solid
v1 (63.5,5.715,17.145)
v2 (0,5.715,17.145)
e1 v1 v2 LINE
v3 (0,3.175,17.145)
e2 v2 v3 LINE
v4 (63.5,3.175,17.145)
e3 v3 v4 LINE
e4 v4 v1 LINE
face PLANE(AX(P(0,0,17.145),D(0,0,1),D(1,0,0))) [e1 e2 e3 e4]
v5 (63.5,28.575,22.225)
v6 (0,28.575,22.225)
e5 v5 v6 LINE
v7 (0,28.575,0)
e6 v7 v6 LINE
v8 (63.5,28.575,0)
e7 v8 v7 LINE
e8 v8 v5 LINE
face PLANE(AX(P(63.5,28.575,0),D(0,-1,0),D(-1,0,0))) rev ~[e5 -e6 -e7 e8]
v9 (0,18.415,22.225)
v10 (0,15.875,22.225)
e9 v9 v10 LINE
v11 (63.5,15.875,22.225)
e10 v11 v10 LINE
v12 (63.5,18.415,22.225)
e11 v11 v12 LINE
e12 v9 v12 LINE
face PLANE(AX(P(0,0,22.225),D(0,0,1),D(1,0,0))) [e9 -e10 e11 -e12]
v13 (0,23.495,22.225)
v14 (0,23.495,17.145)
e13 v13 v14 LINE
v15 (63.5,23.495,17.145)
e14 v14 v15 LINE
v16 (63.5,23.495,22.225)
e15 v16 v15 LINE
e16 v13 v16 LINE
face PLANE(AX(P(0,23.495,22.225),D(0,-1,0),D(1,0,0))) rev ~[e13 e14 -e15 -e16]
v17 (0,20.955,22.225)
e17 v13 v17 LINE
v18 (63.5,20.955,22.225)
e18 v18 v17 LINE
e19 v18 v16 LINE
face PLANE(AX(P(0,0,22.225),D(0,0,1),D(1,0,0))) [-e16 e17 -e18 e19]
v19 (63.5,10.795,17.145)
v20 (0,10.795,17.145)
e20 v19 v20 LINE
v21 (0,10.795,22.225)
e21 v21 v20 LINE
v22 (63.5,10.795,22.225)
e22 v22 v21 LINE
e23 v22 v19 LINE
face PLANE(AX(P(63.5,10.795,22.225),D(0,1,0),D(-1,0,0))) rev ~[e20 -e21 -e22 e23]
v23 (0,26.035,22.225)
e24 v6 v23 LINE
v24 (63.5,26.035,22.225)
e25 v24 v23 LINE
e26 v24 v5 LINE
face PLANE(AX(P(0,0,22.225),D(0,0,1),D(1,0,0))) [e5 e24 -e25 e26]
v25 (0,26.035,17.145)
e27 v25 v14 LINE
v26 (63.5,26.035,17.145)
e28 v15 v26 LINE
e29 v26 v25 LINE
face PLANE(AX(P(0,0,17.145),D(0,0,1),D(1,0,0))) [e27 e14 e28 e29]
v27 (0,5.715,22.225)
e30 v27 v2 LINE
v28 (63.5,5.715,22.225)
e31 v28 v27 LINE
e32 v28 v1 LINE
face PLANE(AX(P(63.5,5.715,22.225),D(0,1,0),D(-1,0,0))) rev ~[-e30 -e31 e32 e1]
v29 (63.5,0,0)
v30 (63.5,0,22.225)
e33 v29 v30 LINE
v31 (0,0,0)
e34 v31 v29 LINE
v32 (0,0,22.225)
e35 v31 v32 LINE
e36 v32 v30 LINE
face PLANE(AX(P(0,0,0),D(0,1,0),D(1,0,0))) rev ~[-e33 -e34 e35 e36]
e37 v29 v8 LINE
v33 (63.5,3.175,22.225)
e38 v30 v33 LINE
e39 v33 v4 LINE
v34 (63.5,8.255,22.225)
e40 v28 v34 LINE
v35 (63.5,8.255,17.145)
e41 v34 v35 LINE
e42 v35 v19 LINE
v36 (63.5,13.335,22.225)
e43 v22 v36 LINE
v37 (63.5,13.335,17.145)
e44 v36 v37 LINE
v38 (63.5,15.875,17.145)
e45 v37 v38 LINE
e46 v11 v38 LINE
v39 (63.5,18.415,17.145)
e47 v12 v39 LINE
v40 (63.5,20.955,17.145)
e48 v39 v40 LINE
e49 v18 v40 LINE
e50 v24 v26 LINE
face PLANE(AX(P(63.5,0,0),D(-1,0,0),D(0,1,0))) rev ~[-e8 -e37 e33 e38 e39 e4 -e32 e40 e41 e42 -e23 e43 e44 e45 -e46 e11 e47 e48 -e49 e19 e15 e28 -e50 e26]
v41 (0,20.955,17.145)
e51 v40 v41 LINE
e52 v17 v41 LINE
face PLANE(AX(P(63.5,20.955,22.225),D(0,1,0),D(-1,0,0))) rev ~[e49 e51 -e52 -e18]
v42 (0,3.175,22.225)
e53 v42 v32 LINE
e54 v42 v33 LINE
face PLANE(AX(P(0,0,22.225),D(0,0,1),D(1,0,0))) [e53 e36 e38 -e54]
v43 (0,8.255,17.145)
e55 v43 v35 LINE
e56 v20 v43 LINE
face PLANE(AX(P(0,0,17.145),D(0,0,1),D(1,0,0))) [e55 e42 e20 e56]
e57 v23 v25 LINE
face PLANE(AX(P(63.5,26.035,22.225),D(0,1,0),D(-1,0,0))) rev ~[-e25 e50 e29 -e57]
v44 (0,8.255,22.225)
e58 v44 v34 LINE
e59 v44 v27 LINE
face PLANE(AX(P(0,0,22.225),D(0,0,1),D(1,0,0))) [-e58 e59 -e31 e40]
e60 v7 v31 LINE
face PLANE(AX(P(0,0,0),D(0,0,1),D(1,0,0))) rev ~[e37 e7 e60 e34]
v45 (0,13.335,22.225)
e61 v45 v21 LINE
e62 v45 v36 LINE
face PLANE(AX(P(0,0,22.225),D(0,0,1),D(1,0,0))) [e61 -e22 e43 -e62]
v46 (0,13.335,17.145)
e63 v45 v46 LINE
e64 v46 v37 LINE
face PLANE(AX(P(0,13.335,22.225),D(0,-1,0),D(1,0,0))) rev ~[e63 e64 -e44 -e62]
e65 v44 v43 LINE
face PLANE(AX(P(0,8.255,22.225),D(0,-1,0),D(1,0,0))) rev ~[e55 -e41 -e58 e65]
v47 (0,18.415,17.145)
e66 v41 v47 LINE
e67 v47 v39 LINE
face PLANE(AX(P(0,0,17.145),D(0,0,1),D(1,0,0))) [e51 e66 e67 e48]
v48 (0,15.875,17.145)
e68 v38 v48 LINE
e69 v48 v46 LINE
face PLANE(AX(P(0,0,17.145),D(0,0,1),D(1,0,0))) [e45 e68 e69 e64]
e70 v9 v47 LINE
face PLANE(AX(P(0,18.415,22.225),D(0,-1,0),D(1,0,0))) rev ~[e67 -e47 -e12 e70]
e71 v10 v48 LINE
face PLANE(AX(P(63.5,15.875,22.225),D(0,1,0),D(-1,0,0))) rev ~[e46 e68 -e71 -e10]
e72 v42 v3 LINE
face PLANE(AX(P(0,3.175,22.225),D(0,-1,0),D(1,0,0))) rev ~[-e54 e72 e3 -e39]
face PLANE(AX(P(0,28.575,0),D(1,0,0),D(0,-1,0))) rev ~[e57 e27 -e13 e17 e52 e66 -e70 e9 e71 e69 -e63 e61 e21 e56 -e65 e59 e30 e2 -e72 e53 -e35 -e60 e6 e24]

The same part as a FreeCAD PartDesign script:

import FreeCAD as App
import Part
import Sketcher

V = App.Vector
Q = App.Units.Quantity

doc = App.newDocument("Part")
params = doc.addObject("Spreadsheet::Sheet", "Params")
for row, (alias, value) in enumerate([
    ("sketch1_width", "2.5 in"),
    ("sketch1_height", "1.125 in"),
    ("pad1_length", "0.875 in"),
    ("sketch2_height", "0.1 in"),
    ("sketch2_width", "2.5 in"),
    ("pocket1_length", "0.2 in"),
], start=1):
    params.set(f"A{row}", alias)
    params.set(f"B{row}", "=" + value)
    params.setAlias(f"B{row}", alias)

body = doc.addObject("PartDesign::Body", "Body")

sketch1 = body.newObject("Sketcher::SketchObject", "Sketch")
sketch1.AttachmentSupport = (doc.getObject("XY_Plane"), [""])
sketch1.MapMode = "FlatFace"
sketch1.addGeometry([
    Part.LineSegment(V(0, 29, 0), V(0, 0, 0)),
    Part.LineSegment(V(0, 0, 0), V(64, 0, 0)),
    Part.LineSegment(V(64, 0, 0), V(64, 29, 0)),
    Part.LineSegment(V(64, 29, 0), V(0, 29, 0)),
], False)
sketch1.addConstraint([
    Sketcher.Constraint("Coincident", 0, 2, 1, 1),
    Sketcher.Constraint("Coincident", 1, 2, 2, 1),
    Sketcher.Constraint("Coincident", 2, 2, 3, 1),
    Sketcher.Constraint("Coincident", 3, 2, 0, 1),
    Sketcher.Constraint("Vertical", 0),
    Sketcher.Constraint("Horizontal", 1),
    Sketcher.Constraint("Vertical", 2),
    Sketcher.Constraint("Horizontal", 3),
    Sketcher.Constraint("Coincident", 0, 2, -1, 1),
    Sketcher.Constraint("DistanceX", 1, 1, 1, 2, Q("2.5 in")),
    Sketcher.Constraint("DistanceY", 0, 2, 0, 1, Q("1.125 in")),
])
sketch1.setExpression("Constraints[9]", "Params.sketch1_width")
sketch1.setExpression("Constraints[10]", "Params.sketch1_height")
pad1 = body.newObject("PartDesign::Pad", "Pad")
pad1.Profile = sketch1
pad1.setExpression("Length", "Params.pad1_length")

sketch2 = body.newObject("Sketcher::SketchObject", "Sketch001")
sketch2.AttachmentSupport = (doc.getObject("XY_Plane"), [""])
sketch2.MapMode = "FlatFace"
sketch2.AttachmentOffset = App.Placement(V(0, 0, 0.875 * 25.4), App.Rotation())
sketch2.addGeometry([
    Part.LineSegment(V(0, 3.2, 0), V(63.5, 3.2, 0)),
    Part.LineSegment(V(63.5, 3.2, 0), V(63.5, 5.7, 0)),
    Part.LineSegment(V(63.5, 5.7, 0), V(0, 5.7, 0)),
    Part.LineSegment(V(0, 5.7, 0), V(0, 3.2, 0)),
    Part.LineSegment(V(0, 8.3, 0), V(63.5, 8.3, 0)),
    Part.LineSegment(V(63.5, 8.3, 0), V(63.5, 10.8, 0)),
    Part.LineSegment(V(63.5, 10.8, 0), V(0, 10.8, 0)),
    Part.LineSegment(V(0, 10.8, 0), V(0, 8.3, 0)),
    Part.LineSegment(V(0, 13.3, 0), V(63.5, 13.3, 0)),
    Part.LineSegment(V(63.5, 13.3, 0), V(63.5, 15.9, 0)),
    Part.LineSegment(V(63.5, 15.9, 0), V(0, 15.9, 0)),
    Part.LineSegment(V(0, 15.9, 0), V(0, 13.3, 0)),
    Part.LineSegment(V(0, 18.4, 0), V(63.5, 18.4, 0)),
    Part.LineSegment(V(63.5, 18.4, 0), V(63.5, 21, 0)),
    Part.LineSegment(V(63.5, 21, 0), V(0, 21, 0)),
    Part.LineSegment(V(0, 21, 0), V(0, 18.4, 0)),
    Part.LineSegment(V(0, 23.5, 0), V(63.5, 23.5, 0)),
    Part.LineSegment(V(63.5, 23.5, 0), V(63.5, 26, 0)),
    Part.LineSegment(V(63.5, 26, 0), V(0, 26, 0)),
    Part.LineSegment(V(0, 26, 0), V(0, 23.5, 0)),
], False)
sketch2.addConstraint([
    Sketcher.Constraint("Coincident", 0, 2, 1, 1),
    Sketcher.Constraint("Coincident", 1, 2, 2, 1),
    Sketcher.Constraint("Coincident", 2, 2, 3, 1),
    Sketcher.Constraint("Coincident", 3, 2, 0, 1),
    Sketcher.Constraint("Coincident", 4, 2, 5, 1),
    Sketcher.Constraint("Coincident", 5, 2, 6, 1),
    Sketcher.Constraint("Coincident", 6, 2, 7, 1),
    Sketcher.Constraint("Coincident", 7, 2, 4, 1),
    Sketcher.Constraint("Coincident", 8, 2, 9, 1),
    Sketcher.Constraint("Coincident", 9, 2, 10, 1),
    Sketcher.Constraint("Coincident", 10, 2, 11, 1),
    Sketcher.Constraint("Coincident", 11, 2, 8, 1),
    Sketcher.Constraint("Coincident", 12, 2, 13, 1),
    Sketcher.Constraint("Coincident", 13, 2, 14, 1),
    Sketcher.Constraint("Coincident", 14, 2, 15, 1),
    Sketcher.Constraint("Coincident", 15, 2, 12, 1),
    Sketcher.Constraint("Coincident", 16, 2, 17, 1),
    Sketcher.Constraint("Coincident", 17, 2, 18, 1),
    Sketcher.Constraint("Coincident", 18, 2, 19, 1),
    Sketcher.Constraint("Coincident", 19, 2, 16, 1),
    Sketcher.Constraint("Horizontal", 0),
    Sketcher.Constraint("Vertical", 1),
    Sketcher.Constraint("Horizontal", 2),
    Sketcher.Constraint("Vertical", 3),
    Sketcher.Constraint("Horizontal", 4),
    Sketcher.Constraint("Vertical", 5),
    Sketcher.Constraint("Horizontal", 6),
    Sketcher.Constraint("Vertical", 7),
    Sketcher.Constraint("Horizontal", 8),
    Sketcher.Constraint("Vertical", 9),
    Sketcher.Constraint("Horizontal", 10),
    Sketcher.Constraint("Vertical", 11),
    Sketcher.Constraint("Horizontal", 12),
    Sketcher.Constraint("Vertical", 13),
    Sketcher.Constraint("Horizontal", 14),
    Sketcher.Constraint("Vertical", 15),
    Sketcher.Constraint("Horizontal", 16),
    Sketcher.Constraint("Vertical", 17),
    Sketcher.Constraint("Horizontal", 18),
    Sketcher.Constraint("Vertical", 19),
    Sketcher.Constraint("PointOnObject", 2, 2, -2),
    Sketcher.Constraint("PointOnObject", 6, 2, -2),
    Sketcher.Constraint("PointOnObject", 10, 2, -2),
    Sketcher.Constraint("PointOnObject", 14, 2, -2),
    Sketcher.Constraint("PointOnObject", 18, 2, -2),
    Sketcher.Constraint("Vertical", 1, 2, 4, 2),
    Sketcher.Constraint("Vertical", 5, 2, 8, 2),
    Sketcher.Constraint("Vertical", 9, 2, 12, 2),
    Sketcher.Constraint("Vertical", 13, 2, 16, 2),
    Sketcher.Constraint("Equal", 3, 5),
    Sketcher.Constraint("Equal", 7, 9),
    Sketcher.Constraint("Equal", 11, 13),
    Sketcher.Constraint("Equal", 15, 17),
    Sketcher.Constraint("DistanceY", 1, 1, 1, 2, Q("0.1 in")),
    Sketcher.Constraint("DistanceY", 1, 2, 4, 2, Q("0.1 in")),
    Sketcher.Constraint("DistanceY", 5, 2, 8, 2, Q("0.1 in")),
    Sketcher.Constraint("DistanceY", 9, 2, 12, 2, Q("0.1 in")),
    Sketcher.Constraint("DistanceY", 13, 2, 16, 2, Q("0.1 in")),
    Sketcher.Constraint("DistanceX", 0, 1, 0, 2, Q("2.5 in")),
    Sketcher.Constraint("DistanceY", -1, 1, 0, 2, Q("0.125 in")),
])
sketch2.setExpression("Constraints[53]", "Params.sketch2_height")
sketch2.setExpression("Constraints[58]", "Params.sketch2_width")
pocket1 = body.newObject("PartDesign::Pocket", "Pocket")
pocket1.Profile = sketch2
pocket1.setExpression("Length", "Params.pocket1_length")

doc.recompute()
